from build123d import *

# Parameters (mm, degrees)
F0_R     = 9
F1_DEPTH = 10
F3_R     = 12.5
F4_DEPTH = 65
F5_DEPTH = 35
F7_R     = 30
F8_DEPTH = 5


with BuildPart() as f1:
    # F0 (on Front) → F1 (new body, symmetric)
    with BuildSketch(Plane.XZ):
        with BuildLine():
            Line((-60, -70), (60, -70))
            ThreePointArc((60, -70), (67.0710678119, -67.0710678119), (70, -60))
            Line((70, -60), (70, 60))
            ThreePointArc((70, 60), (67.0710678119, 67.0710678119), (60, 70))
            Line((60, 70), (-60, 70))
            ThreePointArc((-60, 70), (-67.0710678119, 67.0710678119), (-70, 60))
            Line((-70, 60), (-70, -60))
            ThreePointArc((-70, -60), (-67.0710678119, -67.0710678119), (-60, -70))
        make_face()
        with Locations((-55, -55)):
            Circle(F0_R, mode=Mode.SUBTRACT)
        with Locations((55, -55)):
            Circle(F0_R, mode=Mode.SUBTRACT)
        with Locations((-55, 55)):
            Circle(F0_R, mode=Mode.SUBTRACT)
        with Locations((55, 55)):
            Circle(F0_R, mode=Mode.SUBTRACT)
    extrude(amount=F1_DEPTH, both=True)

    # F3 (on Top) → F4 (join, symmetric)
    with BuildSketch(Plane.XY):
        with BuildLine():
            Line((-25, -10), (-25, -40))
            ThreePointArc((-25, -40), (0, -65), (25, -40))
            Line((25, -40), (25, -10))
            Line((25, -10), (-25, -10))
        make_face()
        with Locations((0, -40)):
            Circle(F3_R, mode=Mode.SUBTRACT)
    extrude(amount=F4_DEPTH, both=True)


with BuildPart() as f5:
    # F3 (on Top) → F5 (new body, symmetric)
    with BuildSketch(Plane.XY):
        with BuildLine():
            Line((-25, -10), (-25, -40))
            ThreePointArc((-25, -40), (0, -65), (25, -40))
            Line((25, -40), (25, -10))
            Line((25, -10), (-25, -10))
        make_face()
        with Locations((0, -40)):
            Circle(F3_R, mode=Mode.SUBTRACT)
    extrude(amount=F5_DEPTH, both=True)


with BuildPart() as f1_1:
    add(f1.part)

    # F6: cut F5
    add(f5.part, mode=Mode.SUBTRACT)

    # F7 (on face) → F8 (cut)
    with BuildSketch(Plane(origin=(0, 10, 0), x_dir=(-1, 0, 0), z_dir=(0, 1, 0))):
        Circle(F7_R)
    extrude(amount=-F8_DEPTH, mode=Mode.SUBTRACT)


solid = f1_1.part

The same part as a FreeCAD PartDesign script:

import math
import FreeCAD as App
import Part
import Sketcher
from FreeCAD import Vector
Q = App.Units.Quantity

doc = App.newDocument("Part")
params = doc.addObject("Spreadsheet::Sheet", "Params")
for row, (alias, value) in enumerate([
    ("sketch1_diameter", "18 mm"),
    ("sketch1_radius", "10 mm"),
    ("sketch1_width", "120 mm"),
    ("pad1_length", "20 mm"),
    ("sketch2_diameter", "25 mm"),
    ("sketch2_radius", "25 mm"),
    ("sketch2_height", "30 mm"),
    ("pad2_length", "130 mm"),
    ("sketch3_diameter", "25 mm"),
    ("sketch3_radius", "25 mm"),
    ("sketch3_height", "30 mm"),
    ("pad3_length", "70 mm"),
    ("sketch4_diameter", "60 mm"),
    ("pocket1_length", "5 mm"),
], start=1):
    params.set(f"A{row}", alias)
    params.set(f"B{row}", "=" + value)
    params.setAlias(f"B{row}", alias)

body = doc.addObject("PartDesign::Body", "Body")

# Sketch on XZ plane
sketch1 = body.newObject("Sketcher::SketchObject", "Sketch")
sketch1.AttachmentSupport = (doc.getObject("XZ_Plane"), [""])
sketch1.MapMode = "FlatFace"
sketch1.addGeometry([
    Part.LineSegment(Vector(-60, -70, 0), Vector(60, -70, 0)),  # 0
    Part.ArcOfCircle(Part.Circle(Vector(60, -60, 0), Vector(0, 0, 1), 10), math.radians(-90), math.radians(0)),  # 1
    Part.LineSegment(Vector(70, -60, 0), Vector(70, 60, 0)),  # 2
    Part.ArcOfCircle(Part.Circle(Vector(60, 60, 0), Vector(0, 0, 1), 10), math.radians(0), math.radians(90)),  # 3
    Part.LineSegment(Vector(60, 70, 0), Vector(-60, 70, 0)),  # 4
    Part.ArcOfCircle(Part.Circle(Vector(-60, 60, 0), Vector(0, 0, 1), 10), math.radians(90), math.radians(180)),  # 5
    Part.LineSegment(Vector(-70, 60, 0), Vector(-70, -60, 0)),  # 6
    Part.ArcOfCircle(Part.Circle(Vector(-60, -60, 0), Vector(0, 0, 1), 10), math.radians(180), math.radians(270)),  # 7
    Part.Circle(Vector(-55, -55, 0), Vector(0, 0, 1), 9),  # 8
    Part.Circle(Vector(55, -55, 0), Vector(0, 0, 1), 9),  # 9
    Part.Circle(Vector(-55, 55, 0), Vector(0, 0, 1), 9),  # 10
    Part.Circle(Vector(55, 55, 0), Vector(0, 0, 1), 9),  # 11
], False)
sketch1.addConstraint([
    Sketcher.Constraint("Tangent", 0, 2, 1, 1),
    Sketcher.Constraint("Tangent", 1, 2, 2, 1),
    Sketcher.Constraint("Tangent", 2, 2, 3, 1),
    Sketcher.Constraint("Tangent", 3, 2, 4, 1),
    Sketcher.Constraint("Tangent", 4, 2, 5, 1),
    Sketcher.Constraint("Tangent", 5, 2, 6, 1),
    Sketcher.Constraint("Tangent", 6, 2, 7, 1),
    Sketcher.Constraint("Tangent", 7, 2, 0, 1),
    Sketcher.Constraint("Horizontal", 0),
    Sketcher.Constraint("Vertical", 2),
    Sketcher.Constraint("Horizontal", 4),
    Sketcher.Constraint("Vertical", 6),
    Sketcher.Constraint("Equal", 1, 3),
    Sketcher.Constraint("Equal", 3, 5),
    Sketcher.Constraint("Equal", 5, 7),
    Sketcher.Constraint("Equal", 8, 9),
    Sketcher.Constraint("Equal", 9, 10),
    Sketcher.Constraint("Equal", 10, 11),
    Sketcher.Constraint("Symmetric", 1, 3, 5, 3, -1, 1),
    Sketcher.Constraint("Symmetric", 9, 3, 10, 3, -1, 1),
    Sketcher.Constraint("Symmetric", 8, 3, 11, 3, -1, 1),
    Sketcher.Constraint("Symmetric", 8, 3, 9, 3, -2),
    Sketcher.Constraint("Equal", 4, 2),
    Sketcher.Constraint("Diameter", 8, Q("18 mm")),
    Sketcher.Constraint("Radius", 1, Q("10 mm")),
    Sketcher.Constraint("DistanceX", 0, 1, 0, 2, Q("120 mm")),
    Sketcher.Constraint("DistanceX", 8, 3, -1, 1, Q("55 mm")),
    Sketcher.Constraint("DistanceY", 8, 3, -1, 1, Q("55 mm")),
])
sketch1.setExpression("Constraints[23]", "Params.sketch1_diameter")
sketch1.setExpression("Constraints[24]", "Params.sketch1_radius")
sketch1.setExpression("Constraints[25]", "Params.sketch1_width")
pad1 = body.newObject("PartDesign::Pad", "Pad")
pad1.Profile = sketch1
pad1.setExpression("Length", "Params.pad1_length")
pad1.Midplane = True

# Sketch on XY plane
sketch2 = body.newObject("Sketcher::SketchObject", "Sketch001")
sketch2.AttachmentSupport = (doc.getObject("XY_Plane"), [""])
sketch2.MapMode = "FlatFace"
sketch2.addGeometry([
    Part.LineSegment(Vector(-25, -10, 0), Vector(-25, -40, 0)),  # 0
    Part.ArcOfCircle(Part.Circle(Vector(0, -40, 0), Vector(0, 0, 1), 25), math.radians(180), math.radians(360)),  # 1
    Part.LineSegment(Vector(25, -40, 0), Vector(25, -10, 0)),  # 2
    Part.LineSegment(Vector(25, -10, 0), Vector(-25, -10, 0)),  # 3
    Part.Circle(Vector(0, -40, 0), Vector(0, 0, 1), 12),  # 4
], False)
sketch2.addConstraint([
    Sketcher.Constraint("Tangent", 0, 2, 1, 1),
    Sketcher.Constraint("Tangent", 1, 2, 2, 1),
    Sketcher.Constraint("Coincident", 2, 2, 3, 1),
    Sketcher.Constraint("Coincident", 3, 2, 0, 1),
    Sketcher.Constraint("Vertical", 0),
    Sketcher.Constraint("Vertical", 2),
    Sketcher.Constraint("Horizontal", 3),
    Sketcher.Constraint("Coincident", 4, 3, 1, 3),
    Sketcher.Constraint("PointOnObject", 1, 3, -2),
    Sketcher.Constraint("Diameter", 4, Q("25 mm")),
    Sketcher.Constraint("Radius", 1, Q("25 mm")),
    Sketcher.Constraint("DistanceY", 0, 2, 0, 1, Q("30 mm")),
    Sketcher.Constraint("DistanceY", 1, 3, -1, 1, Q("40 mm")),
])
sketch2.setExpression("Constraints[9]", "Params.sketch2_diameter")
sketch2.setExpression("Constraints[10]", "Params.sketch2_radius")
sketch2.setExpression("Constraints[11]", "Params.sketch2_height")
pad2 = body.newObject("PartDesign::Pad", "Pad001")
pad2.Profile = sketch2
pad2.setExpression("Length", "Params.pad2_length")
pad2.Midplane = True
body2 = doc.addObject("PartDesign::Body", "Body001")

# Sketch on XY plane
sketch3 = body2.newObject("Sketcher::SketchObject", "Sketch002")
sketch3.AttachmentSupport = (doc.getObject("XY_Plane001"), [""])
sketch3.MapMode = "FlatFace"
sketch3.addGeometry([
    Part.LineSegment(Vector(-25, -10, 0), Vector(-25, -40, 0)),  # 0
    Part.ArcOfCircle(Part.Circle(Vector(0, -40, 0), Vector(0, 0, 1), 25), math.radians(180), math.radians(360)),  # 1
    Part.LineSegment(Vector(25, -40, 0), Vector(25, -10, 0)),  # 2
    Part.LineSegment(Vector(25, -10, 0), Vector(-25, -10, 0)),  # 3
    Part.Circle(Vector(0, -40, 0), Vector(0, 0, 1), 12),  # 4
], False)
sketch3.addConstraint([
    Sketcher.Constraint("Tangent", 0, 2, 1, 1),
    Sketcher.Constraint("Tangent", 1, 2, 2, 1),
    Sketcher.Constraint("Coincident", 2, 2, 3, 1),
    Sketcher.Constraint("Coincident", 3, 2, 0, 1),
    Sketcher.Constraint("Vertical", 0),
    Sketcher.Constraint("Vertical", 2),
    Sketcher.Constraint("Horizontal", 3),
    Sketcher.Constraint("Coincident", 4, 3, 1, 3),
    Sketcher.Constraint("PointOnObject", 1, 3, -2),
    Sketcher.Constraint("Diameter", 4, Q("25 mm")),
    Sketcher.Constraint("Radius", 1, Q("25 mm")),
    Sketcher.Constraint("DistanceY", 0, 2, 0, 1, Q("30 mm")),
    Sketcher.Constraint("DistanceY", 1, 3, -1, 1, Q("40 mm")),
])
sketch3.setExpression("Constraints[9]", "Params.sketch3_diameter")
sketch3.setExpression("Constraints[10]", "Params.sketch3_radius")
sketch3.setExpression("Constraints[11]", "Params.sketch3_height")
pad3 = body2.newObject("PartDesign::Pad", "Pad002")
pad3.Profile = sketch3
pad3.setExpression("Length", "Params.pad3_length")
pad3.Midplane = True
doc.recompute()

boolean = body.newObject("PartDesign::Boolean", "Boolean")
boolean.Type = "Cut"
boolean.addObjects([body2])

# Sketch on XZ plane
sketch4 = body.newObject("Sketcher::SketchObject", "Sketch003")
sketch4.AttachmentSupport = (doc.getObject("XZ_Plane"), [""])
sketch4.MapMode = "FlatFace"
sketch4.AttachmentOffset = App.Placement(Vector(0, 0, -10), App.Rotation())
sketch4.addGeometry(Part.Circle(Vector(0, 0, 0), Vector(0, 0, 1), 30), False)
sketch4.addConstraint([
    Sketcher.Constraint("Coincident", 0, 3, -1, 1),
    Sketcher.Constraint("Diameter", 0, Q("60 mm")),
])
sketch4.setExpression("Constraints[1]", "Params.sketch4_diameter")
pocket1 = body.newObject("PartDesign::Pocket", "Pocket")
pocket1.Profile = sketch4
pocket1.setExpression("Length", "Params.pocket1_length")
pocket1.Reversed = True

doc.recompute()
